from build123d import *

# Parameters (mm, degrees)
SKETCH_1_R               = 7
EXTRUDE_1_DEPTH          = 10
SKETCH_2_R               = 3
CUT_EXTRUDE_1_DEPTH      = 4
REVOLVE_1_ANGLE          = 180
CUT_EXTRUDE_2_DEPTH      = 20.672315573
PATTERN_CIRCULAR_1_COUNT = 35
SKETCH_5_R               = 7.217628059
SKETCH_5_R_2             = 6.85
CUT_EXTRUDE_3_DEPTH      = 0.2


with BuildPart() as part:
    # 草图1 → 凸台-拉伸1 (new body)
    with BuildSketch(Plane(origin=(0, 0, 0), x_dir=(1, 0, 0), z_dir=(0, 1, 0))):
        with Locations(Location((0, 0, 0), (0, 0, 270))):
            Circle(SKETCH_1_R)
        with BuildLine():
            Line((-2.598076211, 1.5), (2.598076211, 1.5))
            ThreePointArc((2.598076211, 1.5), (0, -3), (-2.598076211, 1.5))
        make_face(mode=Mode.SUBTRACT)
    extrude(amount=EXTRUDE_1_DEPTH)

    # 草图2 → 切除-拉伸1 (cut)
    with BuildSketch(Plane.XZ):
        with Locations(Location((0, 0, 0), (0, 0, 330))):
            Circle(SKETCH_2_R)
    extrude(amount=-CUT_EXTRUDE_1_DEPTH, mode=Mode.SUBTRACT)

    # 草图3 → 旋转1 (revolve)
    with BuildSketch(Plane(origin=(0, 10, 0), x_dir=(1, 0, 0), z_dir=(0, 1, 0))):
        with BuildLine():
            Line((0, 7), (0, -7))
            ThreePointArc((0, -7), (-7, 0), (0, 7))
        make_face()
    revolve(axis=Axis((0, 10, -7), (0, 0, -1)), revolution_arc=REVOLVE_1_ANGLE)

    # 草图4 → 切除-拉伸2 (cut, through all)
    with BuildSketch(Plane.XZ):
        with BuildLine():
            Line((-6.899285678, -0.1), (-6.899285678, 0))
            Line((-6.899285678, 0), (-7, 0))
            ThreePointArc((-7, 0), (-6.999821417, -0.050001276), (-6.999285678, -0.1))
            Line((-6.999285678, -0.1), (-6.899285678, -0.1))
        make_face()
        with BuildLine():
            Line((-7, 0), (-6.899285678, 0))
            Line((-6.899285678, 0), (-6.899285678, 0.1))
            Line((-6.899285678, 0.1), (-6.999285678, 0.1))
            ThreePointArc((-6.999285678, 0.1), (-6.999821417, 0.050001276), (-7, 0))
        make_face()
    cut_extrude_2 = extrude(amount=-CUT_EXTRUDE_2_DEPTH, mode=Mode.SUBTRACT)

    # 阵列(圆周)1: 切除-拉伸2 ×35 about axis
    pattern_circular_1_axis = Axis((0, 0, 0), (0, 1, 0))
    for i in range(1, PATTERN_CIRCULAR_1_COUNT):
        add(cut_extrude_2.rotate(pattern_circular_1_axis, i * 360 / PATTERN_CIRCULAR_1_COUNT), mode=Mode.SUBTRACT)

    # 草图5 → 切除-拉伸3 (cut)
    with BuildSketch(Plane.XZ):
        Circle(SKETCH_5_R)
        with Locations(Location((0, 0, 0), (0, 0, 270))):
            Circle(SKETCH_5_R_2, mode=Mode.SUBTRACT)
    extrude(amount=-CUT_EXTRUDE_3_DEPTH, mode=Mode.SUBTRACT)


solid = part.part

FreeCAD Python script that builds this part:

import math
import FreeCAD as App
import Part
import Sketcher
Q = App.Units.Quantity

doc = App.newDocument("Part")
params = doc.addObject("Spreadsheet::Sheet", "Params")
for row, (alias, value) in enumerate([
    ("sketch1_diameter", "14 mm"),
    ("sketch1_radius", "3 mm"),
    ("pad1_length", "10 mm"),
    ("sketch2_diameter", "6 mm"),
    ("pocket1_length", "4 mm"),
    ("sketch3_radius", "7 mm"),
    ("revolution_angle", "180 deg"),
    ("sketch4_width", "0.1 mm"),
    ("sketch4_height", "0.2 mm"),
    ("sketch5_diameter", "13.7 mm"),
    ("pocket3_length", "0.2 mm"),
], start=1):
    params.set(f"A{row}", alias)
    params.set(f"B{row}", "=" + value)
    params.setAlias(f"B{row}", alias)

body = doc.addObject("PartDesign::Body", "Body")

sketch1 = body.newObject("Sketcher::SketchObject", "Sketch")
sketch1.AttachmentSupport = (doc.getObject("XZ_Plane"), [""])
sketch1.MapMode = "FlatFace"
sketch1.addGeometry([
    Part.Circle(App.Vector(0, 0, 0), App.Vector(0, 0, 1), 7),
    Part.ArcOfCircle(Part.Circle(App.Vector(0, 0, 0), App.Vector(0, 0, 1), 3), math.radians(-30), math.radians(210)),
    Part.LineSegment(App.Vector(-2.598076, -1.5, 0), App.Vector(2.598076, -1.5, 0)),
], False)
sketch1.addConstraint([
    Sketcher.Constraint("Coincident", 1, 1, 2, 2),
    Sketcher.Constraint("Coincident", 2, 1, 1, 2),
    Sketcher.Constraint("Horizontal", 2),
    Sketcher.Constraint("Coincident", 0, 3, -1, 1),
    Sketcher.Constraint("Coincident", 1, 3, -1, 1),
    Sketcher.Constraint("Diameter", 0, Q("14 mm")),
    Sketcher.Constraint("Radius", 1, Q("3 mm")),
    Sketcher.Constraint("DistanceY", 1, 1, -1, 1, Q("1.5 mm")),
])
sketch1.setExpression("Constraints[5]", "Params.sketch1_diameter")
sketch1.setExpression("Constraints[6]", "Params.sketch1_radius")
pad1 = body.newObject("PartDesign::Pad", "Pad")
pad1.Profile = sketch1
pad1.setExpression("Length", "Params.pad1_length")
pad1.Reversed = True

sketch2 = body.newObject("Sketcher::SketchObject", "Sketch001")
sketch2.AttachmentSupport = (doc.getObject("XZ_Plane"), [""])
sketch2.MapMode = "FlatFace"
sketch2.addGeometry(Part.Circle(App.Vector(0, 0, 0), App.Vector(0, 0, 1), 3), False)
sketch2.addConstraint([
    Sketcher.Constraint("Coincident", 0, 3, -1, 1),
    Sketcher.Constraint("Diameter", 0, Q("6 mm")),
])
sketch2.setExpression("Constraints[1]", "Params.sketch2_diameter")
pocket1 = body.newObject("PartDesign::Pocket", "Pocket")
pocket1.Profile = sketch2
pocket1.setExpression("Length", "Params.pocket1_length")

sketch3 = body.newObject("Sketcher::SketchObject", "Sketch002")
sketch3.AttachmentSupport = (doc.getObject("XZ_Plane"), [""])
sketch3.MapMode = "FlatFace"
sketch3.AttachmentOffset = App.Placement(App.Vector(0, 0, -10), App.Rotation())
sketch3.addGeometry([
    Part.LineSegment(App.Vector(0, 7, 0), App.Vector(0, -7, 0)),
    Part.ArcOfCircle(Part.Circle(App.Vector(0, 0, 0), App.Vector(0, 0, 1), 7), math.radians(90), math.radians(270)),
], False)
sketch3.addConstraint([
    Sketcher.Constraint("Coincident", 0, 1, 1, 1),
    Sketcher.Constraint("Coincident", 1, 2, 0, 2),
    Sketcher.Constraint("Vertical", 0),
    Sketcher.Constraint("Coincident", 1, 3, -1, 1),
    Sketcher.Constraint("PointOnObject", 0, 1, -2),
    Sketcher.Constraint("Radius", 1, Q("7 mm")),
])
sketch3.setExpression("Constraints[5]", "Params.sketch3_radius")
revolution = body.newObject("PartDesign::Revolution", "Revolution")
revolution.Profile = sketch3
revolution.ReferenceAxis = (sketch3, ["V_Axis"])
revolution.setExpression("Angle", "Params.revolution_angle")
revolution.Reversed = True

sketch4 = body.newObject("Sketcher::SketchObject", "Sketch003")
sketch4.AttachmentSupport = (doc.getObject("XZ_Plane"), [""])
sketch4.MapMode = "FlatFace"
sketch4.addGeometry([
    Part.LineSegment(App.Vector(-6.899286, -0.1, 0), App.Vector(-6.899286, 0.1, 0)),
    Part.LineSegment(App.Vector(-6.899286, 0.1, 0), App.Vector(-6.999286, 0.1, 0)),
    Part.ArcOfCircle(Part.Circle(App.Vector(0.00001, 0, 0), App.Vector(0, 0, 1), 7.00001), math.radians(179.181462), math.radians(180)),
    Part.ArcOfCircle(Part.Circle(App.Vector(0.00001, 0, 0), App.Vector(0, 0, 1), 7.00001), math.radians(-180), math.radians(-179.181462)),
    Part.LineSegment(App.Vector(-6.999286, -0.1, 0), App.Vector(-6.899286, -0.1, 0)),
], False)
sketch4.addConstraint([
    Sketcher.Constraint("Coincident", 0, 2, 1, 1),
    Sketcher.Constraint("Coincident", 1, 2, 2, 1),
    Sketcher.Constraint("Tangent", 2, 2, 3, 1),
    Sketcher.Constraint("Coincident", 3, 2, 4, 1),
    Sketcher.Constraint("Coincident", 4, 2, 0, 1),
    Sketcher.Constraint("Vertical", 0),
    Sketcher.Constraint("Horizontal", 1),
    Sketcher.Constraint("Horizontal", 4),
    Sketcher.Constraint("Equal", 2, 3),
    Sketcher.Constraint("Symmetric", 1, 2, 3, 2, -1),
    Sketcher.Constraint("PointOnObject", 2, 2, -1),
    Sketcher.Constraint("DistanceX", 1, 2, 1, 1, Q("0.1 mm")),
    Sketcher.Constraint("DistanceY", 0, 1, 0, 2, Q("0.2 mm")),
    Sketcher.Constraint("DistanceX", 2, 2, -1, 1, Q("7 mm")),
    Sketcher.Constraint("Radius", 2, Q("7.00001 mm")),
])
sketch4.setExpression("Constraints[11]", "Params.sketch4_width")
sketch4.setExpression("Constraints[12]", "Params.sketch4_height")
pocket2 = body.newObject("PartDesign::Pocket", "Pocket001")
pocket2.Profile = sketch4
pocket2.Type = "ThroughAll"
doc.recompute()

polarpattern = body.newObject("PartDesign::PolarPattern", "PolarPattern")
polarpattern.Originals = [pocket2]
polarpattern.Axis = (doc.getObject("Y_Axis"), [""])
polarpattern.Angle = 360
polarpattern.Occurrences = 35
body.Tip = polarpattern

sketch5 = body.newObject("Sketcher::SketchObject", "Sketch004")
sketch5.AttachmentSupport = (doc.getObject("XZ_Plane"), [""])
sketch5.MapMode = "FlatFace"
sketch5.addGeometry([
    Part.Circle(App.Vector(0, 0, 0), App.Vector(0, 0, 1), 7.217628),
    Part.Circle(App.Vector(0, 0, 0), App.Vector(0, 0, 1), 6.85),
], False)
sketch5.addConstraint([
    Sketcher.Constraint("Coincident", 0, 3, -1, 1),
    Sketcher.Constraint("Coincident", 1, 3, -1, 1),
    Sketcher.Constraint("Diameter", 1, Q("13.7 mm")),
    Sketcher.Constraint("Diameter", 0, Q("14.435256 mm")),
])
sketch5.setExpression("Constraints[2]", "Params.sketch5_diameter")
pocket3 = body.newObject("PartDesign::Pocket", "Pocket002")
pocket3.Profile = sketch5
pocket3.setExpression("Length", "Params.pocket3_length")

doc.recompute()
